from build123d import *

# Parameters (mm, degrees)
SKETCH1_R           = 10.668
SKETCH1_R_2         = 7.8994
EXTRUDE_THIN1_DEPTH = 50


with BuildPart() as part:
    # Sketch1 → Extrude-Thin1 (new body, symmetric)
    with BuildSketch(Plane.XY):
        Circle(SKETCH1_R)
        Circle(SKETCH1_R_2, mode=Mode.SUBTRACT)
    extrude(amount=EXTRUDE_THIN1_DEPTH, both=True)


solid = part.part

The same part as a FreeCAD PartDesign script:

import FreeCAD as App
import Part
import Sketcher
from FreeCAD import Vector
Q = App.Units.Quantity

doc = App.newDocument("Part")
params = doc.addObject("Spreadsheet::Sheet", "Params")
for row, (alias, value) in enumerate([
    ("sketch1_diameter", "0.84 in"),
    ("sketch1_diameter2", "0.622 in"),
    ("pad1_length", "100 mm"),
], start=1):
    params.set(f"A{row}", alias)
    params.set(f"B{row}", "=" + value)
    params.setAlias(f"B{row}", alias)

body = doc.addObject("PartDesign::Body", "Body")

# Sketch on XY plane
sketch1 = body.newObject("Sketcher::SketchObject", "Sketch")
sketch1.AttachmentSupport = (doc.getObject("XY_Plane"), [""])
sketch1.MapMode = "FlatFace"
sketch1.addGeometry(Part.Circle(Vector(0, 0, 0), Vector(0, 0, 1), 11), False)
sketch1.addGeometry(Part.Circle(Vector(0, 0, 0), Vector(0, 0, 1), 8), False)
sketch1.addConstraint(Sketcher.Constraint("Coincident", 0, 3, -1, 1))
sketch1.addConstraint(Sketcher.Constraint("Coincident", 1, 3, -1, 1))
sketch1.addConstraint(Sketcher.Constraint("Diameter", 0, Q("0.84 in")))
sketch1.addConstraint(Sketcher.Constraint("Diameter", 1, Q("0.622 in")))
sketch1.setExpression("Constraints[2]", "Params.sketch1_diameter")
sketch1.setExpression("Constraints[3]", "Params.sketch1_diameter2")
pad1 = body.newObject("PartDesign::Pad", "Pad")
pad1.Profile = sketch1
pad1.setExpression("Length", "Params.pad1_length")
pad1.Midplane = True

doc.recompute()
